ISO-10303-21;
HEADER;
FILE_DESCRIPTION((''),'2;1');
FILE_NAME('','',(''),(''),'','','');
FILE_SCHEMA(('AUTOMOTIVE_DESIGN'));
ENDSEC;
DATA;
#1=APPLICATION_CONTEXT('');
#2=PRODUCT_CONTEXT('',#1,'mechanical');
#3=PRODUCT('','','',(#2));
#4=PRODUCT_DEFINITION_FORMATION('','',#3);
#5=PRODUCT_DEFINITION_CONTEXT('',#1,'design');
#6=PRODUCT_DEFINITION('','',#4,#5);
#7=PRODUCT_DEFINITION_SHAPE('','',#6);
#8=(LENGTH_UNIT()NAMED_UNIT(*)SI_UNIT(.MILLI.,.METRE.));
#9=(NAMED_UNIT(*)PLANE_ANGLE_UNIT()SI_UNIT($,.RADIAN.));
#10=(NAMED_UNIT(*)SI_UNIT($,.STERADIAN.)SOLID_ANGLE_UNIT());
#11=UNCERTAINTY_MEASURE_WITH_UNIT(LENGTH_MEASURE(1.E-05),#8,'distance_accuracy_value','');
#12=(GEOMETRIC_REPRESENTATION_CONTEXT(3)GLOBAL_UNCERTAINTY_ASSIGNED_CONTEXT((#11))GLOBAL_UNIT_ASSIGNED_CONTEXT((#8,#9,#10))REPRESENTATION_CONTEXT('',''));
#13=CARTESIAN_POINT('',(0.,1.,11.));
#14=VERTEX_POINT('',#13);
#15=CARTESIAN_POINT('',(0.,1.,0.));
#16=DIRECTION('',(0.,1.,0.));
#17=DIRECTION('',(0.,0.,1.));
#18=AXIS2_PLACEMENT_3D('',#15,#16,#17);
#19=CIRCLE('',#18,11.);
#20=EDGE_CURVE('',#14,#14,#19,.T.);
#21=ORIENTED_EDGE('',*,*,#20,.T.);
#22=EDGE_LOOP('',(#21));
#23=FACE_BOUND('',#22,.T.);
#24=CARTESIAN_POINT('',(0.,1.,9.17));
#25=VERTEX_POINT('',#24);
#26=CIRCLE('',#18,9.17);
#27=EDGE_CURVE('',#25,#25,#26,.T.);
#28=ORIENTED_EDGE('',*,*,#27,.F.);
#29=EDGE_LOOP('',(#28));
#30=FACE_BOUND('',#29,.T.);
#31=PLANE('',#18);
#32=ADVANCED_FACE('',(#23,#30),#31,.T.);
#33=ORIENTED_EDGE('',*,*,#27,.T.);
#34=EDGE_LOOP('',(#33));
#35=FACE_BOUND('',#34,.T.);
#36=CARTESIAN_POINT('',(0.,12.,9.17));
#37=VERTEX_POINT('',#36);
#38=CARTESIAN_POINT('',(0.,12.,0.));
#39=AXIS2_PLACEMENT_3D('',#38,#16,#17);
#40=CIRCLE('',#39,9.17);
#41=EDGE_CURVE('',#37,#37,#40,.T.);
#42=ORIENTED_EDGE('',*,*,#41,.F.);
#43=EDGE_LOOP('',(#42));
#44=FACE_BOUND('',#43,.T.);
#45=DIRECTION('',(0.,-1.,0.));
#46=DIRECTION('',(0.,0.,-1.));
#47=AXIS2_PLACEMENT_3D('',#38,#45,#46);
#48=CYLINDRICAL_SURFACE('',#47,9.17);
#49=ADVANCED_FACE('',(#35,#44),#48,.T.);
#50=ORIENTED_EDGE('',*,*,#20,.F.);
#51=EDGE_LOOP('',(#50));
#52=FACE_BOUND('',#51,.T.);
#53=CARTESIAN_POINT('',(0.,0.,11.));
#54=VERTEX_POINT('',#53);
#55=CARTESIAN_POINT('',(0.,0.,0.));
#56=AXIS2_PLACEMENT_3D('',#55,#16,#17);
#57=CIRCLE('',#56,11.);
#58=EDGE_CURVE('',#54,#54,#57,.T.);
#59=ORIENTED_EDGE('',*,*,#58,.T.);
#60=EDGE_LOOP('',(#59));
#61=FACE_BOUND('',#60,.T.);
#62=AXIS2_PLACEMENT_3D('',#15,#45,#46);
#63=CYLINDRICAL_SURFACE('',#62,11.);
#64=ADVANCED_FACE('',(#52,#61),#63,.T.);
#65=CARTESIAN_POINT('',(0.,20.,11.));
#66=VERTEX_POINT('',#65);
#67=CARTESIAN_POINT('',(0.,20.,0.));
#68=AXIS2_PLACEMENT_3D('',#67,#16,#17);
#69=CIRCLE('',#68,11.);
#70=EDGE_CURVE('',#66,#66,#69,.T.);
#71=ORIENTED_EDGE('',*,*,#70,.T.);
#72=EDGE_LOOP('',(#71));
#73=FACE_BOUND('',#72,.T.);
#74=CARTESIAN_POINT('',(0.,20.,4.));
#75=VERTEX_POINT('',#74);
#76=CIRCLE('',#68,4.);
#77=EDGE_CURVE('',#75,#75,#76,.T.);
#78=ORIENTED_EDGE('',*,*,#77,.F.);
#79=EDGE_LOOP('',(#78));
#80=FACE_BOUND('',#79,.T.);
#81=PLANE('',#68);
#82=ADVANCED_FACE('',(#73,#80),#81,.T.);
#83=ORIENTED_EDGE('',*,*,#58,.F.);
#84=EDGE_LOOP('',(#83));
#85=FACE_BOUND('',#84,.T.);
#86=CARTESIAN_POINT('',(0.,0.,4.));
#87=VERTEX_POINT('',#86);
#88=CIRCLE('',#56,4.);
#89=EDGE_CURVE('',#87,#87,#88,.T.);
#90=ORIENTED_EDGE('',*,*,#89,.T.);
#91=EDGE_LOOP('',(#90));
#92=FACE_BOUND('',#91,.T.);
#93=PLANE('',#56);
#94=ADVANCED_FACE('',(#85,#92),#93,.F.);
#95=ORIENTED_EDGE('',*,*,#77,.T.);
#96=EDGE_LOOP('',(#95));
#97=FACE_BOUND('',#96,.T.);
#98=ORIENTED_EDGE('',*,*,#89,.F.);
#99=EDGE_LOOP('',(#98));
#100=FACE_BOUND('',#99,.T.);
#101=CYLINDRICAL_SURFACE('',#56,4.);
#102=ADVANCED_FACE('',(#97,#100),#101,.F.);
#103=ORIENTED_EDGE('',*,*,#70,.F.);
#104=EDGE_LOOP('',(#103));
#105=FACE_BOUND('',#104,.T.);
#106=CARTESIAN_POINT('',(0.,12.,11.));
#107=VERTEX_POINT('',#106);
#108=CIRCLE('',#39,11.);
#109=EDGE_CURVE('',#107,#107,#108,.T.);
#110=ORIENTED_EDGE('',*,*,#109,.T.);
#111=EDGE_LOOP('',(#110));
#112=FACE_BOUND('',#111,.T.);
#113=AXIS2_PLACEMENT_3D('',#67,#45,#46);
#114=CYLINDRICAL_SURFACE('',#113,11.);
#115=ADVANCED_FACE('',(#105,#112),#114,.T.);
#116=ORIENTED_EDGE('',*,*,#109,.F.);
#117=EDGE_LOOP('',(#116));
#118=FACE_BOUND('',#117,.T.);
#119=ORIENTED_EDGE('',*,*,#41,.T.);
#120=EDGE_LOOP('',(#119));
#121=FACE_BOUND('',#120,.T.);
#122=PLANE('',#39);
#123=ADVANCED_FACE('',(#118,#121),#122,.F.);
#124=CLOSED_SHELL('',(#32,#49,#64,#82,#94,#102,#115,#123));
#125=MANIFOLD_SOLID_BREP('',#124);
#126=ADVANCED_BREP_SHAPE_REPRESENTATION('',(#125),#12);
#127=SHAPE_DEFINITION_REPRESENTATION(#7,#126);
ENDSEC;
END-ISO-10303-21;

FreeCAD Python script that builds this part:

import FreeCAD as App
import Part
import Sketcher

V = App.Vector

doc = App.newDocument("Part")
params = doc.addObject("Spreadsheet::Sheet", "Params")
for row, (alias, value) in enumerate([
    ("sketch1_diameter", "22 mm"),
    ("pad1_length", "1 mm"),
    ("sketch2_diameter", "18.34 mm"),
    ("pad2_length", "11 mm"),
    ("sketch3_diameter", "22 mm"),
    ("pad3_length", "8 mm"),
    ("sketch4_diameter", "8 mm"),
], start=1):
    params.set(f"A{row}", alias)
    params.set(f"B{row}", "=" + value)
    params.setAlias(f"B{row}", alias)

body = doc.addObject("PartDesign::Body", "Body")

# Sketch on XZ plane
sketch1 = body.newObject("Sketcher::SketchObject", "Sketch")
sketch1.AttachmentSupport = (doc.getObject("XZ_Plane"), [""])
sketch1.MapMode = "FlatFace"
sketch1.addGeometry(Part.Circle(V(0, 0, 0), V(0, 0, 1), 11), False)
sketch1.addConstraint([
    Sketcher.Constraint("Coincident", 0, 3, -1, 1),
    Sketcher.Constraint("Diameter", 0, 22.0),
])
sketch1.setExpression("Constraints[1]", "Params.sketch1_diameter")
pad1 = body.newObject("PartDesign::Pad", "Pad")
pad1.Profile = sketch1
pad1.setExpression("Length", "Params.pad1_length")
pad1.Reversed = True

# Sketch on XZ plane
sketch2 = body.newObject("Sketcher::SketchObject", "Sketch001")
sketch2.AttachmentSupport = (doc.getObject("XZ_Plane"), [""])
sketch2.MapMode = "FlatFace"
sketch2.AttachmentOffset = App.Placement(V(0, 0, -1), App.Rotation())
sketch2.addGeometry(Part.Circle(V(0, 0, 0), V(0, 0, 1), 9.17), False)
sketch2.addConstraint([
    Sketcher.Constraint("Coincident", 0, 3, -1, 1),
    Sketcher.Constraint("Diameter", 0, 18.34),
])
sketch2.setExpression("Constraints[1]", "Params.sketch2_diameter")
pad2 = body.newObject("PartDesign::Pad", "Pad001")
pad2.Profile = sketch2
pad2.setExpression("Length", "Params.pad2_length")
pad2.Reversed = True

# Sketch on XZ plane
sketch3 = body.newObject("Sketcher::SketchObject", "Sketch002")
sketch3.AttachmentSupport = (doc.getObject("XZ_Plane"), [""])
sketch3.MapMode = "FlatFace"
sketch3.AttachmentOffset = App.Placement(V(0, 0, -12), App.Rotation())
sketch3.addGeometry(Part.Circle(V(0, 0, 0), V(0, 0, 1), 11), False)
sketch3.addConstraint([
    Sketcher.Constraint("Coincident", 0, 3, -1, 1),
    Sketcher.Constraint("Diameter", 0, 22.0),
])
sketch3.setExpression("Constraints[1]", "Params.sketch3_diameter")
pad3 = body.newObject("PartDesign::Pad", "Pad002")
pad3.Profile = sketch3
pad3.setExpression("Length", "Params.pad3_length")
pad3.Reversed = True

# Sketch on XZ plane
sketch4 = body.newObject("Sketcher::SketchObject", "Sketch003")
sketch4.AttachmentSupport = (doc.getObject("XZ_Plane"), [""])
sketch4.MapMode = "FlatFace"
sketch4.AttachmentOffset = App.Placement(V(0, 0, -20), App.Rotation())
sketch4.addGeometry(Part.Circle(V(0, 0, 0), V(0, 0, 1), 4), False)
sketch4.addConstraint([
    Sketcher.Constraint("Coincident", 0, 3, -1, 1),
    Sketcher.Constraint("Diameter", 0, 8.0),
])
sketch4.setExpression("Constraints[1]", "Params.sketch4_diameter")
pocket1 = body.newObject("PartDesign::Pocket", "Pocket")
pocket1.Profile = sketch4
pocket1.Type = "ThroughAll"
pocket1.Reversed = True

doc.recompute()
